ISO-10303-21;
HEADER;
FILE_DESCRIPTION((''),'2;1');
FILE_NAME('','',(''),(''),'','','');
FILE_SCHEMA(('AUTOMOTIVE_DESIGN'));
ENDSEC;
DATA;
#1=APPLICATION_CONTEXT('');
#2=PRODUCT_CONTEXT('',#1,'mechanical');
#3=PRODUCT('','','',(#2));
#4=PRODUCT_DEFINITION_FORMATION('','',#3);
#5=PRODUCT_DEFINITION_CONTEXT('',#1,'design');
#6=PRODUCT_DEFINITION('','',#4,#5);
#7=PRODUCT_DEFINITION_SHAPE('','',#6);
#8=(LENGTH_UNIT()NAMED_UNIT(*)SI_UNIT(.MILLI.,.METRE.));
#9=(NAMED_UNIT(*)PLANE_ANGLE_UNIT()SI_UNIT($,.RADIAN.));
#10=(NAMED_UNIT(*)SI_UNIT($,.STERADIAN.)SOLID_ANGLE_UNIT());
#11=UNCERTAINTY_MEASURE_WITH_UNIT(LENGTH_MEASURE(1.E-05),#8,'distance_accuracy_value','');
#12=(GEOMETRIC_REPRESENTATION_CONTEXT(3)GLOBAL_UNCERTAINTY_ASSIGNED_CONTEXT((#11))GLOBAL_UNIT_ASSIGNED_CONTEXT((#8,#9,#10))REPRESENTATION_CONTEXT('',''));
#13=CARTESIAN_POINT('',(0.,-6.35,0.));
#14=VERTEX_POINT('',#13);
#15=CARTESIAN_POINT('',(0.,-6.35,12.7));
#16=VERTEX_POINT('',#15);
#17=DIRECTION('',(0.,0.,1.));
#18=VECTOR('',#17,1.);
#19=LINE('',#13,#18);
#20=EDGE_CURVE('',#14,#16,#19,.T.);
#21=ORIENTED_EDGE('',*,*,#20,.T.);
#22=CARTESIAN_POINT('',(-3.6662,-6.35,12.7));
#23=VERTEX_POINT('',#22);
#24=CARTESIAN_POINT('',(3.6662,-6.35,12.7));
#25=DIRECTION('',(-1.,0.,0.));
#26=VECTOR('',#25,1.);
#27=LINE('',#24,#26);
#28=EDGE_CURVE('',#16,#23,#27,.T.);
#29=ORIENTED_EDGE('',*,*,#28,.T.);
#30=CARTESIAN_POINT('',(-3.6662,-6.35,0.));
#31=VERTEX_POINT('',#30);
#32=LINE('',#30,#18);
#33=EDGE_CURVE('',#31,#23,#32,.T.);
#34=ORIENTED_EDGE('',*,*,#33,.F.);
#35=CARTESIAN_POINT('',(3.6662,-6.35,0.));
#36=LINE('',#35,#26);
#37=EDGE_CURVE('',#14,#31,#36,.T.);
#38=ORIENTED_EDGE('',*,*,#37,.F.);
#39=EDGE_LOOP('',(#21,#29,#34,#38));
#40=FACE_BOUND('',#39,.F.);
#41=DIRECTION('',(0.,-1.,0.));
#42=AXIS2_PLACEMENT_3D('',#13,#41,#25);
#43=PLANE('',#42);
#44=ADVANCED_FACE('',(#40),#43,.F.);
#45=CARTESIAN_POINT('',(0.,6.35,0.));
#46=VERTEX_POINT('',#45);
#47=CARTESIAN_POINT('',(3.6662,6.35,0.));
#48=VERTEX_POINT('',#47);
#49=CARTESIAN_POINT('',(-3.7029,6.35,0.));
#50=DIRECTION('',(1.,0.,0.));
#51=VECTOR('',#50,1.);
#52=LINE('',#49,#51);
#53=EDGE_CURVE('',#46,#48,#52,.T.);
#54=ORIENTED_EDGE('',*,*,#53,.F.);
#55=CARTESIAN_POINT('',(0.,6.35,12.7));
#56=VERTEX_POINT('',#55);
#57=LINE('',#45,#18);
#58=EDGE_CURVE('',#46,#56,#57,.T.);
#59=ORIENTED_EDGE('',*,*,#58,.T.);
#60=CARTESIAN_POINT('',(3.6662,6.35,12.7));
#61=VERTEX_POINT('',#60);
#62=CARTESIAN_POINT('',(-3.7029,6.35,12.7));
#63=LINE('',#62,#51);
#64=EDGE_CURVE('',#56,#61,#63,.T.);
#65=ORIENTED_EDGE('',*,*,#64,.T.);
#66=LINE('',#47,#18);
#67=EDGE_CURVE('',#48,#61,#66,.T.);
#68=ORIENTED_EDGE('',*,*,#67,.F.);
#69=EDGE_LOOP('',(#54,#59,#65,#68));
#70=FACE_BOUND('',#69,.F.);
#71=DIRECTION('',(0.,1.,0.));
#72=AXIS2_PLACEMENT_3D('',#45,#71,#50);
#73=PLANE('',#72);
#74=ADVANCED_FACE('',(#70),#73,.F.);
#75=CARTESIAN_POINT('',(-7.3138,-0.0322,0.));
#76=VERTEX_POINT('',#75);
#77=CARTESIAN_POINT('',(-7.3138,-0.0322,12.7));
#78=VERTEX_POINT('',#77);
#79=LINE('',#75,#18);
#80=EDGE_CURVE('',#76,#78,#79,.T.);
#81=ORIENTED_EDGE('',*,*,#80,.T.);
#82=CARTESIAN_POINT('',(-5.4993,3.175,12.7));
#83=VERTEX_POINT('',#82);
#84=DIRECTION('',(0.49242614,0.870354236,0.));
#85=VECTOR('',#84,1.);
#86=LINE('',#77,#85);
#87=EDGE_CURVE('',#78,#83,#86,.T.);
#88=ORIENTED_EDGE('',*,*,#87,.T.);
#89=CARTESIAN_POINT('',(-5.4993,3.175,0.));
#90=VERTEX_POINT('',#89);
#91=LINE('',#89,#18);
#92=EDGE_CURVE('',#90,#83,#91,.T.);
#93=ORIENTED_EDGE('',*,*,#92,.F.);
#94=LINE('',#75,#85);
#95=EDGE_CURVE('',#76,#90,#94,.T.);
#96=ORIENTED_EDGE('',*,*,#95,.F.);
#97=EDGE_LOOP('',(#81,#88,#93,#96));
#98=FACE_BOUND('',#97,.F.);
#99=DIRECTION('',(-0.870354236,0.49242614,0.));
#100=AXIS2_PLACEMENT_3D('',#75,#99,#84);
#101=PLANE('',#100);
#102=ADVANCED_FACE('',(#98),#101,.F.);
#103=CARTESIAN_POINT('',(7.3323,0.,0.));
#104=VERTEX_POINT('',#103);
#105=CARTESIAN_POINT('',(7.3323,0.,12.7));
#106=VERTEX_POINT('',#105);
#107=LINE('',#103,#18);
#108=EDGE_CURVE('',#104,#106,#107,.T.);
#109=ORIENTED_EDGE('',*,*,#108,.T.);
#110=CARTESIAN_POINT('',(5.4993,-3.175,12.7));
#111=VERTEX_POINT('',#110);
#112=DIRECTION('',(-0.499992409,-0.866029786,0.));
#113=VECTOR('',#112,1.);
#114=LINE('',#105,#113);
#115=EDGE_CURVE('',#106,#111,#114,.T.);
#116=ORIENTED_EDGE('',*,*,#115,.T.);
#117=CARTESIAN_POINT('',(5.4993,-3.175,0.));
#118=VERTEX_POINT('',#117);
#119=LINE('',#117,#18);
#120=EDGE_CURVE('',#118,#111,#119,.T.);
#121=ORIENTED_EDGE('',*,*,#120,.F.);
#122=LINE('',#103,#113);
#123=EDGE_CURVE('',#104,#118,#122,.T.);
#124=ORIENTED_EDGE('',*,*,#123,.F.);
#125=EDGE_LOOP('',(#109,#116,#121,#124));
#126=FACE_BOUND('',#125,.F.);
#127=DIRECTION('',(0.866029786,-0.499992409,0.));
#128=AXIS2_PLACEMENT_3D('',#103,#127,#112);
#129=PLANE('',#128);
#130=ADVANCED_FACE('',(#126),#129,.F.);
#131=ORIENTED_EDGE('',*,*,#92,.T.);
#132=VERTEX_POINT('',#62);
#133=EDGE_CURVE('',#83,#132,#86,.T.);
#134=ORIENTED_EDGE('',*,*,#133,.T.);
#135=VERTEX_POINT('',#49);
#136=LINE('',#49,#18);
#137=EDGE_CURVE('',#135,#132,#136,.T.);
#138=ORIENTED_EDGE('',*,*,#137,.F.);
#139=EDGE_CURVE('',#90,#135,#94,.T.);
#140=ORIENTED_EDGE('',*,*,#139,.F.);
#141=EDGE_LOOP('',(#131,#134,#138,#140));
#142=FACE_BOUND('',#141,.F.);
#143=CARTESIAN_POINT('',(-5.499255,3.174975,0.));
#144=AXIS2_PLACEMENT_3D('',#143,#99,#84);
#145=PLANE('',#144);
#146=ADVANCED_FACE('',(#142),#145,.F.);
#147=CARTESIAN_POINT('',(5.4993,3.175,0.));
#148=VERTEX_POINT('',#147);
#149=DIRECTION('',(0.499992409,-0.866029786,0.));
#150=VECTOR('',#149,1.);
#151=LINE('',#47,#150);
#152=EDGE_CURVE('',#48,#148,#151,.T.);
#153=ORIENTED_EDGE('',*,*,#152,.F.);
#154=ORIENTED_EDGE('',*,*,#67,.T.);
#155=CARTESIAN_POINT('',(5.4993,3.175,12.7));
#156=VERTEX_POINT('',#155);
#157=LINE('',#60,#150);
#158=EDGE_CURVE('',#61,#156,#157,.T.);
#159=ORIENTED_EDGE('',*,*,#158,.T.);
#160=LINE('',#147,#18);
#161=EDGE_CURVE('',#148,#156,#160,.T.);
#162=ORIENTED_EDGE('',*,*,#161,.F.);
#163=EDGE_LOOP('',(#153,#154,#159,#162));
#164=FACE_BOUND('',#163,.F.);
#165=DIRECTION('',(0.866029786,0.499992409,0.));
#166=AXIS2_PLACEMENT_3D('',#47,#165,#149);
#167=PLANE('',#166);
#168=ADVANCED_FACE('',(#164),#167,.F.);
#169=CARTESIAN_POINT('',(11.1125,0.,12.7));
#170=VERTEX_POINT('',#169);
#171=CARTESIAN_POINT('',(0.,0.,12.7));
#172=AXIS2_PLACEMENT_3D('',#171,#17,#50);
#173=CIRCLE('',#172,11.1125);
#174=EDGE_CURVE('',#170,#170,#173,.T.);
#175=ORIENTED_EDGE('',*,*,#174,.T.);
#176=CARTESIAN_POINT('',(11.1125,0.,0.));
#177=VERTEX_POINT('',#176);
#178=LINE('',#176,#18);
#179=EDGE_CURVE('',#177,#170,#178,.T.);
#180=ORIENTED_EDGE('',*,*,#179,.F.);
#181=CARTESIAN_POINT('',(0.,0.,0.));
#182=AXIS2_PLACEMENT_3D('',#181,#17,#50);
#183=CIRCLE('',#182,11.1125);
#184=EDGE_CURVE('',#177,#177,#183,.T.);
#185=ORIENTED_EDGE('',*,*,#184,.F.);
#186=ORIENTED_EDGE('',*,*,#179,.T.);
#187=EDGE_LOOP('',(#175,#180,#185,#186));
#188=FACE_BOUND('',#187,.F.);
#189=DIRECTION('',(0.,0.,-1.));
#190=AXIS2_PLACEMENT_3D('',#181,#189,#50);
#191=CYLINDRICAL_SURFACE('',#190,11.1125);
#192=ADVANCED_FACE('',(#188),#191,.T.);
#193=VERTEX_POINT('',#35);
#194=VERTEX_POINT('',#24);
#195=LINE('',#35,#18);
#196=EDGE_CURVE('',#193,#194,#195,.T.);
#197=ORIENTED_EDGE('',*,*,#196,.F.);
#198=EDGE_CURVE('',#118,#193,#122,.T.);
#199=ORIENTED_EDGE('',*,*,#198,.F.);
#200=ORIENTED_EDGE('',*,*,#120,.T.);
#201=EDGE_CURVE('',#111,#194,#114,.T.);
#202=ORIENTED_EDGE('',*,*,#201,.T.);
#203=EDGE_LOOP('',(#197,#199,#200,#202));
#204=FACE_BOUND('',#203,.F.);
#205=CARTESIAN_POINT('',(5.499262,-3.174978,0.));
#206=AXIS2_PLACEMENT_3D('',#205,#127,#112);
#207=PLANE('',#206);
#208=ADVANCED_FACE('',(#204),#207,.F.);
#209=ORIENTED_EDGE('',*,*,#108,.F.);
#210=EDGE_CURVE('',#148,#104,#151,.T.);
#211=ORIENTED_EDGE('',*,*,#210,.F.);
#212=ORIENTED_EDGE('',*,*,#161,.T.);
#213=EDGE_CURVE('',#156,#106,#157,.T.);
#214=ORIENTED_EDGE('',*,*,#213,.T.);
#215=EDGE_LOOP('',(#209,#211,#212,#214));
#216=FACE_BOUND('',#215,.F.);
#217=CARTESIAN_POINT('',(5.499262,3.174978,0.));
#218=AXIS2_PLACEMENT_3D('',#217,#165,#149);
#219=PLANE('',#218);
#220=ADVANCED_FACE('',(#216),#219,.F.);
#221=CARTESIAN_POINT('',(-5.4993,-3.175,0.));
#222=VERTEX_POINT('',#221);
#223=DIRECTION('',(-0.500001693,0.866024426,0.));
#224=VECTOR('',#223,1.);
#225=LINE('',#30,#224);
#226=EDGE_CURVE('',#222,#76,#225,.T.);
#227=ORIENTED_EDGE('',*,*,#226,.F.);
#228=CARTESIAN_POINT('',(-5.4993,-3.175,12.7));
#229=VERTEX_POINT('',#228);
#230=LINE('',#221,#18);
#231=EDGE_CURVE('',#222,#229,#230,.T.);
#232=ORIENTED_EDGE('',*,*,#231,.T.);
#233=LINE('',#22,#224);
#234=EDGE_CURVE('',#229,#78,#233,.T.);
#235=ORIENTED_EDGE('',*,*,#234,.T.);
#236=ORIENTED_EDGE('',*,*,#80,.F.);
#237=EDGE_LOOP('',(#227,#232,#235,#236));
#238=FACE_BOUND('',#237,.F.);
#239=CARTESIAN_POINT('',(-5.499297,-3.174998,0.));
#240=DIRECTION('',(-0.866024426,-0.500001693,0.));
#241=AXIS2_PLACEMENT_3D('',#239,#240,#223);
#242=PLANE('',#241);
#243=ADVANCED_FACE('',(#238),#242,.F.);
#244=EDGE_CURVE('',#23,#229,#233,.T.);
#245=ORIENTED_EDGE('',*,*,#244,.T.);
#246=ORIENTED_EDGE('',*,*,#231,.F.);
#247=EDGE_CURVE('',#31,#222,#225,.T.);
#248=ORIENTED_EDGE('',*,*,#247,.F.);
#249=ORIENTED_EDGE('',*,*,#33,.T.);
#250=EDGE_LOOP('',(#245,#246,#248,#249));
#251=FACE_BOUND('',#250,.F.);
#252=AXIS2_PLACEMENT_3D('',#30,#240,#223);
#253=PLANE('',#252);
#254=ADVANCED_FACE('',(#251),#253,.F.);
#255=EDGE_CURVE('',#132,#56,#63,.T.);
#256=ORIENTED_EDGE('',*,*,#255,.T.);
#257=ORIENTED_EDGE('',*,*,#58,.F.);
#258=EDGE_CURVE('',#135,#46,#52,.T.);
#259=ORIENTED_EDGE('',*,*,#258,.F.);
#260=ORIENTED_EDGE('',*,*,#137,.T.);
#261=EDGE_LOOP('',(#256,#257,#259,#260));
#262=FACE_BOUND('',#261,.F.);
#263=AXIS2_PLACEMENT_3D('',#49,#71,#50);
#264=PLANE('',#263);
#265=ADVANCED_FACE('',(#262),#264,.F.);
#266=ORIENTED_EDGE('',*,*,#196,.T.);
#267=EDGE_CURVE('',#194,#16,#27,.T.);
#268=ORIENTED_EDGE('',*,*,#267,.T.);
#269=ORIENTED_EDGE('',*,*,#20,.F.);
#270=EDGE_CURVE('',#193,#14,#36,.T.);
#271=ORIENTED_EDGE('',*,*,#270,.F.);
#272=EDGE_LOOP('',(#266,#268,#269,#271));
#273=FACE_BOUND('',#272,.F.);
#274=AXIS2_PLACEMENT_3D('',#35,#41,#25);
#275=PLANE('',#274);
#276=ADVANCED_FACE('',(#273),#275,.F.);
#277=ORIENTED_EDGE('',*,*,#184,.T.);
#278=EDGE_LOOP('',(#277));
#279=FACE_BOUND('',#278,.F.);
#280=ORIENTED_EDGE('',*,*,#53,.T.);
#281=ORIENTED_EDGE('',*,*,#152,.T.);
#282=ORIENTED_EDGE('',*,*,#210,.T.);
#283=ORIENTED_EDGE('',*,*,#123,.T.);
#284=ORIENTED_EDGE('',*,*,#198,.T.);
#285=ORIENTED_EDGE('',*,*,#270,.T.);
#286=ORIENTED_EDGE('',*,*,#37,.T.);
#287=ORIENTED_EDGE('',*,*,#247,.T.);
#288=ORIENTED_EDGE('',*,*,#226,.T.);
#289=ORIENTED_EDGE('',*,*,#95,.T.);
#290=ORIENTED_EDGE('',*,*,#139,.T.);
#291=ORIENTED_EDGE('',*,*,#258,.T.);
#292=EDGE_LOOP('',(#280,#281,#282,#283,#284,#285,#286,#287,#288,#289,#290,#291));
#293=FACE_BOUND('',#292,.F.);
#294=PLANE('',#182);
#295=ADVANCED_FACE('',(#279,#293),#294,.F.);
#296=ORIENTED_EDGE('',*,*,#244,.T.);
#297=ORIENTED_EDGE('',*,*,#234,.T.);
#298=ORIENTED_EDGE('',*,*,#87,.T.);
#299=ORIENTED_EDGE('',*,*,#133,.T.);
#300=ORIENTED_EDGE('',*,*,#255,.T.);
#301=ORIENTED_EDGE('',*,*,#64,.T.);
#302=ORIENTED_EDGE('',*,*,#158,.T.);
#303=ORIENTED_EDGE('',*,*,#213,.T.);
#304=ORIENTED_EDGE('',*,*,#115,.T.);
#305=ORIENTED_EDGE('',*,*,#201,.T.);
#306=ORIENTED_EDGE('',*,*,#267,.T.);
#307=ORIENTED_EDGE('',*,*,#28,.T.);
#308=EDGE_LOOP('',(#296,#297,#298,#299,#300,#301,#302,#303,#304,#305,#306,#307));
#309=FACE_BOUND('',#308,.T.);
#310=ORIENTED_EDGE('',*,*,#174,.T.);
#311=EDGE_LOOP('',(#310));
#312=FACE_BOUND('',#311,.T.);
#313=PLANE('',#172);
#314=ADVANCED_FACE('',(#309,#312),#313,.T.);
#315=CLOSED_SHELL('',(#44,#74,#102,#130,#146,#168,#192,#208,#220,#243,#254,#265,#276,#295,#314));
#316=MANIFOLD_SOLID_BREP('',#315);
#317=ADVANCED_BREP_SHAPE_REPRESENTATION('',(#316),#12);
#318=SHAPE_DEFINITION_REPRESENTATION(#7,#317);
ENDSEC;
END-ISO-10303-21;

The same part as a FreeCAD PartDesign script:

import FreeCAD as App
import Part
import Sketcher

V = App.Vector
Q = App.Units.Quantity

doc = App.newDocument("Part")
body = doc.addObject("PartDesign::Body", "Body")

# Sketch on XY plane
sketch1 = doc.addObject("Sketcher::SketchObject", "Sketch")
body.addObject(sketch1)
sketch1.AttachmentSupport = (doc.XY_Plane, [""])
sketch1.MapMode = "FlatFace"
sketch1.addGeometry([
    Part.Circle(V(0, 0, 0), V(0, 0, 1), 11),  # 0
    Part.LineSegment(V(4, 6, 0), V(7, 0, 0)),  # 1
    Part.LineSegment(V(7, 0, 0), V(4, -6, 0)),  # 2
    Part.LineSegment(V(4, -6, 0), V(-4, -6, 0)),  # 3
    Part.LineSegment(V(-4, -6, 0), V(-7, 0, 0)),  # 4
    Part.LineSegment(V(-7, 0, 0), V(-4, 6, 0)),  # 5
    Part.LineSegment(V(-4, 6, 0), V(4, 6, 0)),  # 6
], False)
sketch1.addConstraint([
    Sketcher.Constraint("Coincident", 1, 2, 2, 1),
    Sketcher.Constraint("Coincident", 2, 2, 3, 1),
    Sketcher.Constraint("Coincident", 3, 2, 4, 1),
    Sketcher.Constraint("Coincident", 4, 2, 5, 1),
    Sketcher.Constraint("Coincident", 5, 2, 6, 1),
    Sketcher.Constraint("Coincident", 6, 2, 1, 1),
    Sketcher.Constraint("Horizontal", 3),
    Sketcher.Constraint("Horizontal", 6),
    Sketcher.Constraint("Coincident", 0, 3, -1, 1),
    Sketcher.Constraint("Symmetric", 3, 2, 6, 2, -1, 1),
    Sketcher.Constraint("PointOnObject", 1, 2, -1),
    Sketcher.Constraint("Parallel", 1, 4),
    Sketcher.Constraint("Vertical", 2, 2, 6, 2),
    Sketcher.Constraint("Diameter", 0, Q("0.875 in")),
    Sketcher.Constraint("Angle", 1, Q("-60.0005 deg")),
    Sketcher.Constraint("DistanceY", 3, 2, 5, 2, Q("0.5 in")),
    Sketcher.Constraint("Angle", 5, Q("60.4998 deg")),
    Sketcher.Constraint("DistanceX", 3, 2, 1, 2, Q("0.433 in")),
    Sketcher.Constraint("Distance", 4, Q("0.2872 in")),
])
pad1 = doc.addObject("PartDesign::Pad", "Pad")
body.addObject(pad1)
pad1.Profile = sketch1
pad1.Length = Q("0.5 in")

doc.recompute()
